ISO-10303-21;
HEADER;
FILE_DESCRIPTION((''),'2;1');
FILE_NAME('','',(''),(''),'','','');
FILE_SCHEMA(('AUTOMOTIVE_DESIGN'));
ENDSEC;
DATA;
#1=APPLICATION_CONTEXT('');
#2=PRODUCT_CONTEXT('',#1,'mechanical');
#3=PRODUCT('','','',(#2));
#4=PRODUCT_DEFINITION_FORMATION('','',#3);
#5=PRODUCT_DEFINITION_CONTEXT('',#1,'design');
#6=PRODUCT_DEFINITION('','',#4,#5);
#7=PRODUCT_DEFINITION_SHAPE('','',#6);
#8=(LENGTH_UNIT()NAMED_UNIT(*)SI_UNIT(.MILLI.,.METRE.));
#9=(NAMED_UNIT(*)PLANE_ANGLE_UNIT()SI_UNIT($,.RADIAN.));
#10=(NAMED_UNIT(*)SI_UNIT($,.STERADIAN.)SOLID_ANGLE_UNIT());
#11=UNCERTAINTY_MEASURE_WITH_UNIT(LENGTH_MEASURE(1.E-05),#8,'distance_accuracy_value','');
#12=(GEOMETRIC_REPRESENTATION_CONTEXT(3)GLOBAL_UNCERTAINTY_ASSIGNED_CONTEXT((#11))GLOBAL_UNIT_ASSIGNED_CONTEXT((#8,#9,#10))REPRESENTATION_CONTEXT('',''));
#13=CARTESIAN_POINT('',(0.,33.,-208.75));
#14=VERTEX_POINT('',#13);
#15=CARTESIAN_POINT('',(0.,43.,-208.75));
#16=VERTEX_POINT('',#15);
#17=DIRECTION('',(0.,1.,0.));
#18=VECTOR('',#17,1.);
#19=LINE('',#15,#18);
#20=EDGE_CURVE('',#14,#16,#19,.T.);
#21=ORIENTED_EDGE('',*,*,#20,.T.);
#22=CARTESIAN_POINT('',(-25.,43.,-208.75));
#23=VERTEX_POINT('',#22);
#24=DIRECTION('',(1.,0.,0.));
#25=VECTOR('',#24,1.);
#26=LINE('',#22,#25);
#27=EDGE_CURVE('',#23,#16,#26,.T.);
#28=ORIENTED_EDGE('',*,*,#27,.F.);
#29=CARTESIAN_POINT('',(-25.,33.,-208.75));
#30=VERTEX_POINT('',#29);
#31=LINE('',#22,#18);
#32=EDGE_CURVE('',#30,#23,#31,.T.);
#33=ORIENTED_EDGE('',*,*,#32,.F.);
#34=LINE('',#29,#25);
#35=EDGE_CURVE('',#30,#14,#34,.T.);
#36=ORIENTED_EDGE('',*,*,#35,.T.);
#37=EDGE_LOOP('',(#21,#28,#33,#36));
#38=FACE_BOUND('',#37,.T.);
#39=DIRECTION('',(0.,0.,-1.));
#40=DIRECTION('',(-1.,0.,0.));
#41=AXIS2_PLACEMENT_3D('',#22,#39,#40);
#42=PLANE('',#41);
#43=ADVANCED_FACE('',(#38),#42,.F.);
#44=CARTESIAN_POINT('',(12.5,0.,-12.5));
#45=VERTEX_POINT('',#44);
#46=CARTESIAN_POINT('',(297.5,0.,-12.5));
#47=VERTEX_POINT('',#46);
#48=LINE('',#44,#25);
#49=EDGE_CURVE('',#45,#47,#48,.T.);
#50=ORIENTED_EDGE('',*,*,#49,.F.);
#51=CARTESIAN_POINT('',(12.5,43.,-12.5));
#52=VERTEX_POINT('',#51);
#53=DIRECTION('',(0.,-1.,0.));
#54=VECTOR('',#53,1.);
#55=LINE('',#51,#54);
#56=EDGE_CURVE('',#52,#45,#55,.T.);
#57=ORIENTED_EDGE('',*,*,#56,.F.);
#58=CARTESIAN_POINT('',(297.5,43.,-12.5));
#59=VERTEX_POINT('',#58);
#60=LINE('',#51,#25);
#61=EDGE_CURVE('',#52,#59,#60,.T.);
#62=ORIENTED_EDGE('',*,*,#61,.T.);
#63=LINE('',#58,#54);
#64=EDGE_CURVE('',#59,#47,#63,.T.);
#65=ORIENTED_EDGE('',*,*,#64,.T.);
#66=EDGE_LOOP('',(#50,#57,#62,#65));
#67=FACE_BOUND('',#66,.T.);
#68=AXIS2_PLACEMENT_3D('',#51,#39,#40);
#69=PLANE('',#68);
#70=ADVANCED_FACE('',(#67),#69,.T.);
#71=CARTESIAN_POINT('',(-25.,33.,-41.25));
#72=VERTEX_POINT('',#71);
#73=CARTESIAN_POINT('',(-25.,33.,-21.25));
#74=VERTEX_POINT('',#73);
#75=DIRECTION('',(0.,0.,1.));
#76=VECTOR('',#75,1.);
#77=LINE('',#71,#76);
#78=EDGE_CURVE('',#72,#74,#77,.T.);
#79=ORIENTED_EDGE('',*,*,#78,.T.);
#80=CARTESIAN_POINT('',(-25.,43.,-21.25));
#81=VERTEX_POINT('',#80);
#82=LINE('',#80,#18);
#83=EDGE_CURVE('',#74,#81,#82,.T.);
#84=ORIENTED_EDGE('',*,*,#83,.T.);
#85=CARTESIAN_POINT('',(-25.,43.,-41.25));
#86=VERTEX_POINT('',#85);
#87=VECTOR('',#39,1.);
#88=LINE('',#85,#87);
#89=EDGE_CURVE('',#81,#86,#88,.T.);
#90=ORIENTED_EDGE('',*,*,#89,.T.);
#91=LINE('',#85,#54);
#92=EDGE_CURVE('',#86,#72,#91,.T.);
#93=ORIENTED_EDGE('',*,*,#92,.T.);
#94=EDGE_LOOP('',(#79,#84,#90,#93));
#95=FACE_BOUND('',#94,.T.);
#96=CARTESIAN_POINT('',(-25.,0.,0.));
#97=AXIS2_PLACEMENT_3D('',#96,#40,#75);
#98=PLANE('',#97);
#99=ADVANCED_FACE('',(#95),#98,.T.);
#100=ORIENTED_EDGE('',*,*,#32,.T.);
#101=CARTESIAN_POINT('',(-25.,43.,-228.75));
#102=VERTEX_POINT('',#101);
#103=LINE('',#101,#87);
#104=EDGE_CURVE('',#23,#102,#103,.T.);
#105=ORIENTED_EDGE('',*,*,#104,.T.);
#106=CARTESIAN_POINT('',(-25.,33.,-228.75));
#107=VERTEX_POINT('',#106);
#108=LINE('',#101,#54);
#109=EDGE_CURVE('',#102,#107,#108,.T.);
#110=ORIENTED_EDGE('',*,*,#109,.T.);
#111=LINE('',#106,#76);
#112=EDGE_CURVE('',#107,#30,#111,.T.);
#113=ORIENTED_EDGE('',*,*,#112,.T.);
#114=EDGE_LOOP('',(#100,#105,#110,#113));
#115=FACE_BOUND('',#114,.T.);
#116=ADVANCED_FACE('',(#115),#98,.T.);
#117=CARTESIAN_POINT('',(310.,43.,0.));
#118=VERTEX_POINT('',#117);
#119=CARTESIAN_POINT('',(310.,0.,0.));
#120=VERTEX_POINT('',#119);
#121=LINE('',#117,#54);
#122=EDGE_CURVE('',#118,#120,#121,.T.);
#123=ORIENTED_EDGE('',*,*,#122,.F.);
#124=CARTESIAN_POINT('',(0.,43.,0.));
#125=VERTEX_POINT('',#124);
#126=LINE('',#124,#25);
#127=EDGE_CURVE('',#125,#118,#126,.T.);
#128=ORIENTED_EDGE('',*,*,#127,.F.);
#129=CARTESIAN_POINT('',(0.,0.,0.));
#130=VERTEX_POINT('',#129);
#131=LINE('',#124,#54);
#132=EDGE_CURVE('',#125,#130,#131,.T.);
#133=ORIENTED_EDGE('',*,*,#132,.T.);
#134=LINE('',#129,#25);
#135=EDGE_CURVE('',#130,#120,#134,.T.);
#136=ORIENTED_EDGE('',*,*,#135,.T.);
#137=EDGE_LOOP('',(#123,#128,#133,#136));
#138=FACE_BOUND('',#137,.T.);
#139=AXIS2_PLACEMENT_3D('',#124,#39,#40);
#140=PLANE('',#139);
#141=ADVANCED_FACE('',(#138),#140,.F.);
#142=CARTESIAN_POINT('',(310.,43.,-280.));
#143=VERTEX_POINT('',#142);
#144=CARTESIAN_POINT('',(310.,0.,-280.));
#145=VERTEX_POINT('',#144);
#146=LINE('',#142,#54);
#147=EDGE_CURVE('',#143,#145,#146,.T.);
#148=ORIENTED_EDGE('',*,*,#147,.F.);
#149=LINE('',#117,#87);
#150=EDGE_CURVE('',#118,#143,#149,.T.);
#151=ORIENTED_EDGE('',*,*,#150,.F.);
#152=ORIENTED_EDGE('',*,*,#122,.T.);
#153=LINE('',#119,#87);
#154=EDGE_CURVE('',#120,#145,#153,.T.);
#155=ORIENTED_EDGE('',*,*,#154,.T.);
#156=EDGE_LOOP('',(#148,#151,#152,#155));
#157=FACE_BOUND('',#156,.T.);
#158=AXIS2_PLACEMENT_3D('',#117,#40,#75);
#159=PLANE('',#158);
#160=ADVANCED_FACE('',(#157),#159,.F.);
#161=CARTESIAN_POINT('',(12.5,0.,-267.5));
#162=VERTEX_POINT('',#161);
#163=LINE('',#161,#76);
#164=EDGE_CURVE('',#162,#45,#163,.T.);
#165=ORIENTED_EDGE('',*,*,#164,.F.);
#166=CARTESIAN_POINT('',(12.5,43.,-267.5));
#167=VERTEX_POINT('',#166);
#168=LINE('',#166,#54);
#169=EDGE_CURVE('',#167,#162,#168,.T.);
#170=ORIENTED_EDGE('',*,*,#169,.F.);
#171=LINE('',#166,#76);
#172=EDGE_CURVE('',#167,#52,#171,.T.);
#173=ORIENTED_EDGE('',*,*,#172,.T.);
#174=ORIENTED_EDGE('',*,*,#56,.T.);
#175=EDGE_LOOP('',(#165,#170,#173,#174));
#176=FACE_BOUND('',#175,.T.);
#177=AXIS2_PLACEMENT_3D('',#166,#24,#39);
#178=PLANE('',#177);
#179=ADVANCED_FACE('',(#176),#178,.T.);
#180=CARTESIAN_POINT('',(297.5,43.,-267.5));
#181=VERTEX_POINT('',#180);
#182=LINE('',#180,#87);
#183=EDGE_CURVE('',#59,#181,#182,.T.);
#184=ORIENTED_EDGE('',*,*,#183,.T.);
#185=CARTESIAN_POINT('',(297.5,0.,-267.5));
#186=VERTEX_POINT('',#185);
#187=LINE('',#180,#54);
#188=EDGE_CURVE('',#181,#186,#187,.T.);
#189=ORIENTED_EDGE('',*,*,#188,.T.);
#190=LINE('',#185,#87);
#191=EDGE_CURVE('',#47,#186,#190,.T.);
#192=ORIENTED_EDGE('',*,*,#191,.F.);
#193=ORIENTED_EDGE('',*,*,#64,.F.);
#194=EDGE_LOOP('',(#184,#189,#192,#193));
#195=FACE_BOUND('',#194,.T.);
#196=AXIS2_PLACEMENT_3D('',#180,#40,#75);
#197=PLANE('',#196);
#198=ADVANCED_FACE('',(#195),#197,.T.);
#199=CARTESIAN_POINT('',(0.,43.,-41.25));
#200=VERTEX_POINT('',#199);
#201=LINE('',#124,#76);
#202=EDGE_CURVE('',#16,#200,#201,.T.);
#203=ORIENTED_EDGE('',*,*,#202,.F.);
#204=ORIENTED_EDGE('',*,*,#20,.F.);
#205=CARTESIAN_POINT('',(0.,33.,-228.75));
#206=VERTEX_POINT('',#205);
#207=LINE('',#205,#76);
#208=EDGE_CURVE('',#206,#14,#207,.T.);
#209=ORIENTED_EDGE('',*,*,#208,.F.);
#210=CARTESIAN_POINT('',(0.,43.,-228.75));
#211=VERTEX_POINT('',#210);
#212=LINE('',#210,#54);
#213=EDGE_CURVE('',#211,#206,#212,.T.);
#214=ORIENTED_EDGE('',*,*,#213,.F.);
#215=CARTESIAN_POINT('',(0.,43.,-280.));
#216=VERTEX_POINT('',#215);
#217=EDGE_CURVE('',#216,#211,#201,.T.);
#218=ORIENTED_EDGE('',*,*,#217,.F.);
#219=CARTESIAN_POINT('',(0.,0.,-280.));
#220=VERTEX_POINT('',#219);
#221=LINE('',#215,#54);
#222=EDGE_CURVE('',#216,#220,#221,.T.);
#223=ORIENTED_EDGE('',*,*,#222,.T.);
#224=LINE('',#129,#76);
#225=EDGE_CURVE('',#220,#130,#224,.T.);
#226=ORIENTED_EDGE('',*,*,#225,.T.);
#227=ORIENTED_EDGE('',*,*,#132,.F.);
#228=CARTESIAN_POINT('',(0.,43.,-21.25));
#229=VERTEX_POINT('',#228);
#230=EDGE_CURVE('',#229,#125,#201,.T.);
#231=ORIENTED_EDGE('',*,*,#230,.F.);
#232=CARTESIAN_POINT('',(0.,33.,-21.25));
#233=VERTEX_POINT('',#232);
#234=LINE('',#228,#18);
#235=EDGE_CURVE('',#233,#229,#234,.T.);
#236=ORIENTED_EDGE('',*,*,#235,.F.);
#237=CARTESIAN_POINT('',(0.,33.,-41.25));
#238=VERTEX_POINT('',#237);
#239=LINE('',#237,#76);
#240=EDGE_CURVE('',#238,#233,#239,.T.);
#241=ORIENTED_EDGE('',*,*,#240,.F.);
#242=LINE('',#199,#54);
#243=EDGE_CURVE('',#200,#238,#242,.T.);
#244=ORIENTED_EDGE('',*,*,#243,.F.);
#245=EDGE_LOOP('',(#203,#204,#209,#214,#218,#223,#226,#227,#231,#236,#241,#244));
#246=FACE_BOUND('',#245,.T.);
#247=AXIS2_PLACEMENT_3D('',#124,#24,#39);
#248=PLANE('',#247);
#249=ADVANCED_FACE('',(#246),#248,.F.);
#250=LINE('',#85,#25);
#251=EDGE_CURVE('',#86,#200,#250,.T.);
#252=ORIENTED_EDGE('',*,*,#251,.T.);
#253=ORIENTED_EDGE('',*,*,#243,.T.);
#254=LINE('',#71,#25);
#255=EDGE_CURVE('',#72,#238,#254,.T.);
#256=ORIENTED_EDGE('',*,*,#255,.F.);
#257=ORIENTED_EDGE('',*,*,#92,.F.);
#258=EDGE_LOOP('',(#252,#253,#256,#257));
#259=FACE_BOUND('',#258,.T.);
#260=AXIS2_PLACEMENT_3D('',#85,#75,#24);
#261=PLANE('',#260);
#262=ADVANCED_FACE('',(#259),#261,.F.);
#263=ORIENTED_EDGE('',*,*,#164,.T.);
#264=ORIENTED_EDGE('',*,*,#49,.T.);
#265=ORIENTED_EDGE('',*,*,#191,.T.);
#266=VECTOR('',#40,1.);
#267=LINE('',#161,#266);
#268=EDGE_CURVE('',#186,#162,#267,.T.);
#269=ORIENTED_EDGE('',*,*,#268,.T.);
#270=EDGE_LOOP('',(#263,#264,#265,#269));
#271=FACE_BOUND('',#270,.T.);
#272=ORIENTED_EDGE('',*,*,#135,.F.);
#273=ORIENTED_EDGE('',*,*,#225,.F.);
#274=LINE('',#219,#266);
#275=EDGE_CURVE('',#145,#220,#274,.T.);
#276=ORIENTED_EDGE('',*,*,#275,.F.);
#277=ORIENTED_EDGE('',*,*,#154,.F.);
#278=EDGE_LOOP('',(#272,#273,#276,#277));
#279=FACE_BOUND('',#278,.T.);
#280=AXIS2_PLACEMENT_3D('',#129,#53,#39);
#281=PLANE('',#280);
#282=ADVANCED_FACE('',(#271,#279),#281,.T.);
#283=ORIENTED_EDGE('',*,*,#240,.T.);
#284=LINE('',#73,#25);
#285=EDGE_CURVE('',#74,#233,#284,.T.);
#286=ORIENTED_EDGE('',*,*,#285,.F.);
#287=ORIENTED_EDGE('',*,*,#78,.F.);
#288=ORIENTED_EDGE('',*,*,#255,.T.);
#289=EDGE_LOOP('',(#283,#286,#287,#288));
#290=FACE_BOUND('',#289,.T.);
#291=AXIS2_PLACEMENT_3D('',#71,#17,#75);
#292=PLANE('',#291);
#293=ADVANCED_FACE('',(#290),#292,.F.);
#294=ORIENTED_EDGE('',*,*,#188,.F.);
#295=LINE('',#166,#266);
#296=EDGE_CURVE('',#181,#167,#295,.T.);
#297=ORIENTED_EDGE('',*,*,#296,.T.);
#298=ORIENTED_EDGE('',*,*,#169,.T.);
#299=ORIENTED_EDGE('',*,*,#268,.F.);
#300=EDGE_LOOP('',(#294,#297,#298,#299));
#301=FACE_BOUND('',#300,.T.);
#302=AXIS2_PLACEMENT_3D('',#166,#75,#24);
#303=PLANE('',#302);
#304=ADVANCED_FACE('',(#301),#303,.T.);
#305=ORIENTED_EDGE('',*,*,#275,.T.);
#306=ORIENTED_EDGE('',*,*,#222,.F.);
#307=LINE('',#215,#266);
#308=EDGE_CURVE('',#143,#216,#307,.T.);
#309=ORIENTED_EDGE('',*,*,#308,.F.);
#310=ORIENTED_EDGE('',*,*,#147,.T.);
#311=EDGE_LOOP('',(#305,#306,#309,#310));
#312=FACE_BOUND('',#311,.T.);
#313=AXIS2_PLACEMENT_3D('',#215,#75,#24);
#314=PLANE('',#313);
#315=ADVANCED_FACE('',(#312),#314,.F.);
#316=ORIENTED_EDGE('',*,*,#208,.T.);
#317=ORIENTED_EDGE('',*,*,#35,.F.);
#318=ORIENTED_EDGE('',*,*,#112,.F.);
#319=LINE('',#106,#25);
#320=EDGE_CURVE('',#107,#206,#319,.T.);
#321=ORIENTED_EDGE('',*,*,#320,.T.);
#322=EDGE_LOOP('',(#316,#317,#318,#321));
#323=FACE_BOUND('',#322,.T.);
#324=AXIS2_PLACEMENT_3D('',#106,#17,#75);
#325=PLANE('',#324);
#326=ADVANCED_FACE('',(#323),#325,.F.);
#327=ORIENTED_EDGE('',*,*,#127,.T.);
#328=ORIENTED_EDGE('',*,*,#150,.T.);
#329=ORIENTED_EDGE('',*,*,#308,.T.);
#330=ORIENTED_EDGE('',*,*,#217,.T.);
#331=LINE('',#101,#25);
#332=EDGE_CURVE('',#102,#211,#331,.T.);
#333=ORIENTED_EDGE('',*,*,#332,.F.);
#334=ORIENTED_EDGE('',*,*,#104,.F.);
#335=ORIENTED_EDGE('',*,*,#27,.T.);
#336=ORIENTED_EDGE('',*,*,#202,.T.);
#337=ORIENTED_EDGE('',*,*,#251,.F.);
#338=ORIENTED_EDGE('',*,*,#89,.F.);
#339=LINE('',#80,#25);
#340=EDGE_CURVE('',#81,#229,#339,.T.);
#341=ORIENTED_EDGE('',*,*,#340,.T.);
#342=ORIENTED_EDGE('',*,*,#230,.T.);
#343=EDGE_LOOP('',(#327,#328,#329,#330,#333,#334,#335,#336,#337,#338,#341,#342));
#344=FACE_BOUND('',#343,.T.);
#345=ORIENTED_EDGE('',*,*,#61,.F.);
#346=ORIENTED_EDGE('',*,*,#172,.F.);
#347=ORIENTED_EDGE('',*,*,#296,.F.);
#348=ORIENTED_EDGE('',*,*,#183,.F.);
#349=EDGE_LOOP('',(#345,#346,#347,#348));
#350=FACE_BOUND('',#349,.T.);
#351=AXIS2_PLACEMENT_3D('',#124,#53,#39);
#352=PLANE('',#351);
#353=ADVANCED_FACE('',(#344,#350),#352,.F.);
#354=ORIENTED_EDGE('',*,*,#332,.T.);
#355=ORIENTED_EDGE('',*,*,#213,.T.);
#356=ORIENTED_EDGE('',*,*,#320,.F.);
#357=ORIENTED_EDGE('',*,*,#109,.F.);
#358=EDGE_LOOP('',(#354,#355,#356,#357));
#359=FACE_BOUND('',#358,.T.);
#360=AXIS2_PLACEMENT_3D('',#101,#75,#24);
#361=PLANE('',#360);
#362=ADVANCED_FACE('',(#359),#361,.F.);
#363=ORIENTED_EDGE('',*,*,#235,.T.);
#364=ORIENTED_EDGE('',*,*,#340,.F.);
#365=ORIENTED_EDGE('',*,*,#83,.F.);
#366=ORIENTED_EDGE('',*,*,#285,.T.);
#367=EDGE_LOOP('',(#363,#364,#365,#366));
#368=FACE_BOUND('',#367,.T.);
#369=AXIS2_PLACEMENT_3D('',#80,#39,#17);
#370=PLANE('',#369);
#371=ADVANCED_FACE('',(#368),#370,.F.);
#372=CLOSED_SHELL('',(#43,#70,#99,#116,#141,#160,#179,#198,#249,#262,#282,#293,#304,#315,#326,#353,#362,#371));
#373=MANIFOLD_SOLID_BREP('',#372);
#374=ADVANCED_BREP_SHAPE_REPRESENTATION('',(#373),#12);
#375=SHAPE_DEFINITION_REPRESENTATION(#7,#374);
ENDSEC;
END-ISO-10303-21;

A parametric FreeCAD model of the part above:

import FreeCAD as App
import Part
import Sketcher
from FreeCAD import Vector

doc = App.newDocument("Part")
body = doc.addObject("PartDesign::Body", "Body")

# Sketch on XZ plane
sketch1 = body.newObject("Sketcher::SketchObject", "Sketch")
sketch1.AttachmentSupport = (doc.getObject("XZ_Plane"), [""])
sketch1.MapMode = "FlatFace"
sketch1.addGeometry([
    Part.LineSegment(Vector(0, -280, 0), Vector(0, 0, 0)),  # 0
    Part.LineSegment(Vector(0, 0, 0), Vector(310, 0, 0)),  # 1
    Part.LineSegment(Vector(310, 0, 0), Vector(310, -280, 0)),  # 2
    Part.LineSegment(Vector(310, -280, 0), Vector(0, -280, 0)),  # 3
    Part.LineSegment(Vector(297.5, -12.5, 0), Vector(12.5, -12.5, 0)),  # 4
    Part.LineSegment(Vector(12.5, -12.5, 0), Vector(12.5, -267.5, 0)),  # 5
    Part.LineSegment(Vector(12.5, -267.5, 0), Vector(297.5, -267.5, 0)),  # 6
    Part.LineSegment(Vector(297.5, -267.5, 0), Vector(297.5, -12.5, 0)),  # 7
], False)
sketch1.addConstraint([
    Sketcher.Constraint("Coincident", 0, 2, 1, 1),
    Sketcher.Constraint("Coincident", 1, 2, 2, 1),
    Sketcher.Constraint("Coincident", 2, 2, 3, 1),
    Sketcher.Constraint("Coincident", 3, 2, 0, 1),
    Sketcher.Constraint("Coincident", 4, 2, 5, 1),
    Sketcher.Constraint("Coincident", 5, 2, 6, 1),
    Sketcher.Constraint("Coincident", 6, 2, 7, 1),
    Sketcher.Constraint("Coincident", 7, 2, 4, 1),
    Sketcher.Constraint("Vertical", 0),
    Sketcher.Constraint("Horizontal", 1),
    Sketcher.Constraint("Vertical", 2),
    Sketcher.Constraint("Horizontal", 3),
    Sketcher.Constraint("Horizontal", 4),
    Sketcher.Constraint("Vertical", 5),
    Sketcher.Constraint("Horizontal", 6),
    Sketcher.Constraint("Vertical", 7),
    Sketcher.Constraint("Coincident", 0, 2, -1, 1),
    Sketcher.Constraint("DistanceX", 1, 1, 1, 2, 310.0),
    Sketcher.Constraint("DistanceX", 4, 2, 4, 1, 285.0),
    Sketcher.Constraint("DistanceY", 0, 1, 0, 2, 280.0),
    Sketcher.Constraint("DistanceY", 5, 2, 5, 1, 255.0),
    Sketcher.Constraint("DistanceX", -1, 1, 4, 2, 12.5),
    Sketcher.Constraint("DistanceY", 4, 2, -1, 1, 12.5),
])
pad1 = body.newObject("PartDesign::Pad", "Pad")
pad1.Profile = sketch1
pad1.Length = 43
pad1.Reversed = True

# Sketch on YZ plane
sketch2 = body.newObject("Sketcher::SketchObject", "Sketch001")
sketch2.AttachmentSupport = (doc.getObject("YZ_Plane"), [""])
sketch2.MapMode = "FlatFace"
sketch2.addGeometry([
    Part.LineSegment(Vector(43, -228.75, 0), Vector(33, -228.75, 0)),  # 0
    Part.LineSegment(Vector(33, -228.75, 0), Vector(33, -208.75, 0)),  # 1
    Part.LineSegment(Vector(33, -208.75, 0), Vector(43, -208.75, 0)),  # 2
    Part.LineSegment(Vector(43, -208.75, 0), Vector(43, -228.75, 0)),  # 3
    Part.LineSegment(Vector(43, -41.25, 0), Vector(33, -41.25, 0)),  # 4
    Part.LineSegment(Vector(33, -41.25, 0), Vector(33, -21.25, 0)),  # 5
    Part.LineSegment(Vector(33, -21.25, 0), Vector(43, -21.25, 0)),  # 6
    Part.LineSegment(Vector(43, -21.25, 0), Vector(43, -41.25, 0)),  # 7
], False)
sketch2.addConstraint([
    Sketcher.Constraint("Coincident", 0, 2, 1, 1),
    Sketcher.Constraint("Coincident", 1, 2, 2, 1),
    Sketcher.Constraint("Coincident", 2, 2, 3, 1),
    Sketcher.Constraint("Coincident", 3, 2, 0, 1),
    Sketcher.Constraint("Coincident", 4, 2, 5, 1),
    Sketcher.Constraint("Coincident", 5, 2, 6, 1),
    Sketcher.Constraint("Coincident", 6, 2, 7, 1),
    Sketcher.Constraint("Coincident", 7, 2, 4, 1),
    Sketcher.Constraint("Horizontal", 0),
    Sketcher.Constraint("Vertical", 1),
    Sketcher.Constraint("Horizontal", 2),
    Sketcher.Constraint("Vertical", 3),
    Sketcher.Constraint("Horizontal", 4),
    Sketcher.Constraint("Vertical", 5),
    Sketcher.Constraint("Horizontal", 6),
    Sketcher.Constraint("Vertical", 7),
    Sketcher.Constraint("Vertical", 1, 2, 4, 2),
    Sketcher.Constraint("Vertical", 3, 2, 6, 2),
    Sketcher.Constraint("Equal", 3, 5),
    Sketcher.Constraint("DistanceX", 0, 2, 0, 1, 10.0),
    Sketcher.Constraint("DistanceY", 1, 1, 1, 2, 20.0),
    Sketcher.Constraint("DistanceX", -1, 1, 0, 2, 33.0),
    Sketcher.Constraint("DistanceY", 1, 2, 4, 2, 167.5),
    Sketcher.Constraint("DistanceY", 0, 2, -1, 1, 228.75),
])
pad2 = body.newObject("PartDesign::Pad", "Pad001")
pad2.Profile = sketch2
pad2.Length = 25
pad2.Reversed = True

doc.recompute()
